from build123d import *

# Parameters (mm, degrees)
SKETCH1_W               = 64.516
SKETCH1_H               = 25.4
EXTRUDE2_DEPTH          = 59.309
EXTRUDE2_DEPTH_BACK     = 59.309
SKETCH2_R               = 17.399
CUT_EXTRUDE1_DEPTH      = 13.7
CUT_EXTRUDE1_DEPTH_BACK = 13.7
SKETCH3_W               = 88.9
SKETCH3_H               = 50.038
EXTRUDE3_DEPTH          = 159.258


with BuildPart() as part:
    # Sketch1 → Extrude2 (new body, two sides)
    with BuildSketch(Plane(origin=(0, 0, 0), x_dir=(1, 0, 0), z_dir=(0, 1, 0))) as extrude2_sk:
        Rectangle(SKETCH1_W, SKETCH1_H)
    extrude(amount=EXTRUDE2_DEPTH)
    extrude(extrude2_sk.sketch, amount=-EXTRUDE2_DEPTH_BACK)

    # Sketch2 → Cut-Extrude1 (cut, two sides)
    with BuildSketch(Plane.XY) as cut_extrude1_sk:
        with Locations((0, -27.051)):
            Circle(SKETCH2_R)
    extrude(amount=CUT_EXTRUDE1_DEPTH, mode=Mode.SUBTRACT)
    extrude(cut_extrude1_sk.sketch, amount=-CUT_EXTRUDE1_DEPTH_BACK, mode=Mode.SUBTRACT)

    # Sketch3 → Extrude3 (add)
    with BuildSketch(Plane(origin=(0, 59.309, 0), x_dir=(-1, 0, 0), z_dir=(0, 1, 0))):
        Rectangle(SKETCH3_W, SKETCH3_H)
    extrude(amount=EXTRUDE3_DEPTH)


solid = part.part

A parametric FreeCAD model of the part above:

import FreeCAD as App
import Part
import Sketcher
from FreeCAD import Vector
Q = App.Units.Quantity


def add_polygon(sketch, points):
    """Adds a closed chain of lines whose ends are joined by coincident constraints."""
    first, n = sketch.GeometryCount, len(points)
    for a, b in zip(points, points[1:] + points[:1]):
        sketch.addGeometry(Part.LineSegment(App.Vector(*a, 0), App.Vector(*b, 0)), False)
    for i in range(n):
        sketch.addConstraint(Sketcher.Constraint("Coincident", first + i, 2, first + (i + 1) % n, 1))

doc = App.newDocument("Part")
params = doc.addObject("Spreadsheet::Sheet", "Params")
for row, (alias, value) in enumerate([
    ("sketch1_height", "1 in"),
    ("sketch1_width", "2.54 in"),
    ("pad1_length", "2.335 in"),
    ("pad1_length2", "2.335 in"),
    ("sketch2_diameter", "1.37 in"),
    ("sketch3_width", "3.5 in"),
    ("sketch3_height", "1.97 in"),
    ("pad2_length", "6.27 in"),
], start=1):
    params.set(f"A{row}", alias)
    params.set(f"B{row}", "=" + value)
    params.setAlias(f"B{row}", alias)

body = doc.addObject("PartDesign::Body", "Body")

# Sketch on XZ plane
sketch1 = body.newObject("Sketcher::SketchObject", "Sketch")
sketch1.AttachmentSupport = (doc.getObject("XZ_Plane"), [""])
sketch1.MapMode = "FlatFace"
add_polygon(sketch1, [(-32, -13), (-32, 13), (32, 13), (32, -13)])  # lines 0-3
sketch1.addConstraint([
    Sketcher.Constraint("Vertical", 0),
    Sketcher.Constraint("Horizontal", 1),
    Sketcher.Constraint("Vertical", 2),
    Sketcher.Constraint("Horizontal", 3),
    Sketcher.Constraint("Symmetric", 0, 2, 2, 2, -1, 1),
    Sketcher.Constraint("DistanceY", 0, 1, 0, 2, Q("1 in")),
    Sketcher.Constraint("DistanceX", 1, 1, 1, 2, Q("2.54 in")),
])
sketch1.setExpression("Constraints[9]", "Params.sketch1_height")
sketch1.setExpression("Constraints[10]", "Params.sketch1_width")
pad1 = body.newObject("PartDesign::Pad", "Pad")
pad1.Profile = sketch1
pad1.Type = "TwoLengths"
pad1.setExpression("Length", "Params.pad1_length")
pad1.setExpression("Length2", "Params.pad1_length2")
pad1.Reversed = True

# Sketch on XY plane
sketch2 = body.newObject("Sketcher::SketchObject", "Sketch001")
sketch2.AttachmentSupport = (doc.getObject("XY_Plane"), [""])
sketch2.MapMode = "FlatFace"
sketch2.addGeometry(Part.Circle(Vector(0, -27, 0), Vector(0, 0, 1), 17), False)
sketch2.addConstraint([
    Sketcher.Constraint("PointOnObject", 0, 3, -2),
    Sketcher.Constraint("Diameter", 0, Q("1.37 in")),
    Sketcher.Constraint("DistanceY", 0, 3, -1, 1, Q("1.065 in")),
])
sketch2.setExpression("Constraints[1]", "Params.sketch2_diameter")
pocket1 = body.newObject("PartDesign::Pocket", "Pocket")
pocket1.Profile = sketch2
pocket1.Type = "ThroughAll"
pocket1.Midplane = True

# Sketch on XZ plane
sketch3 = body.newObject("Sketcher::SketchObject", "Sketch002")
sketch3.AttachmentSupport = (doc.getObject("XZ_Plane"), [""])
sketch3.MapMode = "FlatFace"
sketch3.AttachmentOffset = App.Placement(Vector(0, 0, -2.335 * 25.4), App.Rotation())
add_polygon(sketch3, [(44, 25), (44, -25), (-44, -25), (-44, 25)])  # lines 0-3
sketch3.addConstraint([
    Sketcher.Constraint("Vertical", 0),
    Sketcher.Constraint("Horizontal", 1),
    Sketcher.Constraint("Vertical", 2),
    Sketcher.Constraint("Horizontal", 3),
    Sketcher.Constraint("Symmetric", 0, 2, 2, 2, -1, 1),
    Sketcher.Constraint("DistanceX", 1, 2, 1, 1, Q("3.5 in")),
    Sketcher.Constraint("DistanceY", 0, 2, 0, 1, Q("1.97 in")),
])
sketch3.setExpression("Constraints[9]", "Params.sketch3_width")
sketch3.setExpression("Constraints[10]", "Params.sketch3_height")
pad2 = body.newObject("PartDesign::Pad", "Pad001")
pad2.Profile = sketch3
pad2.setExpression("Length", "Params.pad2_length")
pad2.Reversed = True

doc.recompute()
